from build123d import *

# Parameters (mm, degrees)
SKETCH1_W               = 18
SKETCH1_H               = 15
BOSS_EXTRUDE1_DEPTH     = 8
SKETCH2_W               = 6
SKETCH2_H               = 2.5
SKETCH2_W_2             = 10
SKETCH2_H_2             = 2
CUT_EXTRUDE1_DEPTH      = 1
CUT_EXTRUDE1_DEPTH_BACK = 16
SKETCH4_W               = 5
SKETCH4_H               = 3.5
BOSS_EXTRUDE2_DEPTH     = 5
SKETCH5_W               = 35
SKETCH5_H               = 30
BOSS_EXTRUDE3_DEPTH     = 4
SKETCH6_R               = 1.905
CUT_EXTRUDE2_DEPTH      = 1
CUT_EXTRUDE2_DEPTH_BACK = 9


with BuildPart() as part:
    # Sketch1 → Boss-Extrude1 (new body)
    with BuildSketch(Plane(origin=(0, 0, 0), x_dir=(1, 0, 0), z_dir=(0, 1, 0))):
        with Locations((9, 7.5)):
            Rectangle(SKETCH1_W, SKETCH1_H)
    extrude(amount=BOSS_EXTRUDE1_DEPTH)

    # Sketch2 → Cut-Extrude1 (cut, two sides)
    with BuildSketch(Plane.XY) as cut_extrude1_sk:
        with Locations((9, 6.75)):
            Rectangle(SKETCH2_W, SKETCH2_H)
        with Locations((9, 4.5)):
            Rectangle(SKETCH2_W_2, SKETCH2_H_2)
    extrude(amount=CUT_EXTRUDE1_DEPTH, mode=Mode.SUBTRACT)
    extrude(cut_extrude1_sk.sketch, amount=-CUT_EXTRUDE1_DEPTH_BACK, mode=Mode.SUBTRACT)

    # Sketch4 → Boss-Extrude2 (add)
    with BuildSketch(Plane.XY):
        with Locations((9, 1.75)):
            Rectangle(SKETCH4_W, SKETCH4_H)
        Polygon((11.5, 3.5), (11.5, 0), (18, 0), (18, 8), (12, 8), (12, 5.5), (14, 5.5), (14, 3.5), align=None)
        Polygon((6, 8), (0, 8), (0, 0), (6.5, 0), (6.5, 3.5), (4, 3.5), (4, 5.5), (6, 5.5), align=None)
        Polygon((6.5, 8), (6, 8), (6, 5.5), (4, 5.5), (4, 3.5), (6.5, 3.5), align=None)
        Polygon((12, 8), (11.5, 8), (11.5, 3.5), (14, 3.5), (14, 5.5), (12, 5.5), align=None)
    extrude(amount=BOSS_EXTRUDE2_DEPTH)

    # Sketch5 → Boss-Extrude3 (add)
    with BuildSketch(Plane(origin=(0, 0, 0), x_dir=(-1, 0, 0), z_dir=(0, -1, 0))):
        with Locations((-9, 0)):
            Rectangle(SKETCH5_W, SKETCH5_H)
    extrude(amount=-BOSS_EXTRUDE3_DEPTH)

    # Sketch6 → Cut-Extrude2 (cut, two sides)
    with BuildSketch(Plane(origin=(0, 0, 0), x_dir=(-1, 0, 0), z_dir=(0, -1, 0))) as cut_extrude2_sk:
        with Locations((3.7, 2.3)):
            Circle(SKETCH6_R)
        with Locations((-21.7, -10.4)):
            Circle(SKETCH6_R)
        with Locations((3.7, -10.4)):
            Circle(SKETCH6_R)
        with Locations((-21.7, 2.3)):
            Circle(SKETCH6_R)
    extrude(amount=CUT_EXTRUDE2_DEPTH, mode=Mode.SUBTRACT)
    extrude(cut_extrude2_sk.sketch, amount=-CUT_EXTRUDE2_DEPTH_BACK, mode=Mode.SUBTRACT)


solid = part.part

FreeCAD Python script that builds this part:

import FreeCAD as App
import Part
import Sketcher
from FreeCAD import Vector


def add_polygon(sketch, points):
    """Adds a closed chain of lines whose ends are joined by coincident constraints."""
    first, n = sketch.GeometryCount, len(points)
    for a, b in zip(points, points[1:] + points[:1]):
        sketch.addGeometry(Part.LineSegment(App.Vector(*a, 0), App.Vector(*b, 0)), False)
    for i in range(n):
        sketch.addConstraint(Sketcher.Constraint("Coincident", first + i, 2, first + (i + 1) % n, 1))

doc = App.newDocument("Part")
body = doc.addObject("PartDesign::Body", "Body")

# Sketch on XZ plane
sketch1 = body.newObject("Sketcher::SketchObject", "Sketch")
sketch1.AttachmentSupport = (doc.getObject("XZ_Plane"), [""])
sketch1.MapMode = "FlatFace"
add_polygon(sketch1, [(0, -15), (0, 0), (18, 0), (18, -15)])  # lines 0-3
sketch1.addConstraint(Sketcher.Constraint("Vertical", 0))
sketch1.addConstraint(Sketcher.Constraint("Horizontal", 1))
sketch1.addConstraint(Sketcher.Constraint("Vertical", 2))
sketch1.addConstraint(Sketcher.Constraint("Horizontal", 3))
sketch1.addConstraint(Sketcher.Constraint("Coincident", 0, 2, -1, 1))
sketch1.addConstraint(Sketcher.Constraint("DistanceX", 1, 1, 1, 2, 18.0))
sketch1.addConstraint(Sketcher.Constraint("DistanceY", 0, 1, 0, 2, 15.0))
pad1 = body.newObject("PartDesign::Pad", "Pad")
pad1.Profile = sketch1
pad1.Length = 8
pad1.Reversed = True

# Sketch on XY plane
sketch2 = body.newObject("Sketcher::SketchObject", "Sketch001")
sketch2.AttachmentSupport = (doc.getObject("XY_Plane"), [""])
sketch2.MapMode = "FlatFace"
add_polygon(sketch2, [(6, 8), (6, 5.5), (4, 5.5), (4, 3.5), (14, 3.5), (14, 5.5), (12, 5.5), (12, 8)])  # lines 0-7
sketch2.addConstraint(Sketcher.Constraint("Vertical", 0))
sketch2.addConstraint(Sketcher.Constraint("Horizontal", 1))
sketch2.addConstraint(Sketcher.Constraint("Vertical", 2))
sketch2.addConstraint(Sketcher.Constraint("Horizontal", 3))
sketch2.addConstraint(Sketcher.Constraint("Vertical", 4))
sketch2.addConstraint(Sketcher.Constraint("Horizontal", 5))
sketch2.addConstraint(Sketcher.Constraint("Vertical", 6))
sketch2.addConstraint(Sketcher.Constraint("Horizontal", 7))
sketch2.addConstraint(Sketcher.Constraint("Horizontal", 1, 2, 4, 2))
sketch2.addConstraint(Sketcher.Constraint("Equal", 1, 5))
sketch2.addConstraint(Sketcher.Constraint("Equal", 5, 2))
sketch2.addConstraint(Sketcher.Constraint("DistanceX", 1, 2, 1, 1, 2.0))
sketch2.addConstraint(Sketcher.Constraint("DistanceX", 3, 1, 3, 2, 10.0))
sketch2.addConstraint(Sketcher.Constraint("DistanceY", 0, 2, 0, 1, 2.5))
sketch2.addConstraint(Sketcher.Constraint("DistanceX", -1, 1, 0, 2, 6.0))
sketch2.addConstraint(Sketcher.Constraint("DistanceY", -1, 1, 6, 2, 8.0))
pocket1 = body.newObject("PartDesign::Pocket", "Pocket")
pocket1.Profile = sketch2
pocket1.Type = "ThroughAll"
pocket1.Midplane = True

# Sketch on XY plane
sketch3 = body.newObject("Sketcher::SketchObject", "Sketch002")
sketch3.AttachmentSupport = (doc.getObject("XY_Plane"), [""])
sketch3.MapMode = "FlatFace"
add_polygon(sketch3, [(18, 0), (18, 8), (11.5, 8), (11.5, 3.5), (6.5, 3.5), (6.5, 8), (0, 8), (0, 0)])  # lines 0-7
sketch3.addConstraint(Sketcher.Constraint("Vertical", 0))
sketch3.addConstraint(Sketcher.Constraint("Horizontal", 1))
sketch3.addConstraint(Sketcher.Constraint("Vertical", 2))
sketch3.addConstraint(Sketcher.Constraint("Horizontal", 3))
sketch3.addConstraint(Sketcher.Constraint("Vertical", 4))
sketch3.addConstraint(Sketcher.Constraint("Horizontal", 5))
sketch3.addConstraint(Sketcher.Constraint("Vertical", 6))
sketch3.addConstraint(Sketcher.Constraint("Horizontal", 7))
sketch3.addConstraint(Sketcher.Constraint("Coincident", 6, 2, -1, 1))
sketch3.addConstraint(Sketcher.Constraint("Horizontal", 1, 2, 4, 2))
sketch3.addConstraint(Sketcher.Constraint("Equal", 1, 5))
sketch3.addConstraint(Sketcher.Constraint("DistanceX", 3, 2, 3, 1, 5.0))
sketch3.addConstraint(Sketcher.Constraint("DistanceX", 7, 1, 7, 2, 18.0))
sketch3.addConstraint(Sketcher.Constraint("DistanceY", 0, 1, 0, 2, 8.0))
sketch3.addConstraint(Sketcher.Constraint("DistanceY", 2, 2, 2, 1, 4.5))
pad2 = body.newObject("PartDesign::Pad", "Pad001")
pad2.Profile = sketch3
pad2.Length = 5

# Sketch on XZ plane
sketch4 = body.newObject("Sketcher::SketchObject", "Sketch003")
sketch4.AttachmentSupport = (doc.getObject("XZ_Plane"), [""])
sketch4.MapMode = "FlatFace"
add_polygon(sketch4, [(26, -15), (26, 15), (-8, 15), (-8, -15)])  # lines 0-3
sketch4.addConstraint(Sketcher.Constraint("Vertical", 0))
sketch4.addConstraint(Sketcher.Constraint("Horizontal", 1))
sketch4.addConstraint(Sketcher.Constraint("Vertical", 2))
sketch4.addConstraint(Sketcher.Constraint("Horizontal", 3))
sketch4.addConstraint(Sketcher.Constraint("DistanceX", 1, 2, 1, 1, 35.0))
sketch4.addConstraint(Sketcher.Constraint("DistanceY", 0, 1, 0, 2, 30.0))
sketch4.addConstraint(Sketcher.Constraint("DistanceY", -1, 1, 0, 2, 15.0))
sketch4.addConstraint(Sketcher.Constraint("DistanceX", -1, 1, 0, 2, 26.5))
pad3 = body.newObject("PartDesign::Pad", "Pad002")
pad3.Profile = sketch4
pad3.Length = 4
pad3.Reversed = True

# Sketch on XZ plane
sketch5 = body.newObject("Sketcher::SketchObject", "Sketch004")
sketch5.AttachmentSupport = (doc.getObject("XZ_Plane"), [""])
sketch5.MapMode = "FlatFace"
sketch5.addGeometry(Part.Circle(Vector(-3.7, -2.3, 0), Vector(0, 0, 1), 1.9), False)
sketch5.addGeometry(Part.Circle(Vector(21.7, 10.4, 0), Vector(0, 0, 1), 1.9), False)
sketch5.addGeometry(Part.Circle(Vector(-3.7, 10.4, 0), Vector(0, 0, 1), 1.9), False)
sketch5.addGeometry(Part.Circle(Vector(21.7, -2.3, 0), Vector(0, 0, 1), 1.9), False)
sketch5.addConstraint(Sketcher.Constraint("Equal", 0, 1))
sketch5.addConstraint(Sketcher.Constraint("Equal", 1, 2))
sketch5.addConstraint(Sketcher.Constraint("Equal", 2, 3))
sketch5.addConstraint(Sketcher.Constraint("Horizontal", 1, 3, 2, 3))
sketch5.addConstraint(Sketcher.Constraint("Horizontal", 0, 3, 3, 3))
sketch5.addConstraint(Sketcher.Constraint("Vertical", 0, 3, 2, 3))
sketch5.addConstraint(Sketcher.Constraint("Vertical", 1, 3, 3, 3))
sketch5.addConstraint(Sketcher.Constraint("Diameter", 0, 3.81))
sketch5.addConstraint(Sketcher.Constraint("DistanceX", 0, 3, -1, 1, 3.7))
sketch5.addConstraint(Sketcher.Constraint("DistanceY", 0, 3, -1, 1, 2.3))
sketch5.addConstraint(Sketcher.Constraint("DistanceX", -1, 1, 1, 3, 21.7))
sketch5.addConstraint(Sketcher.Constraint("DistanceY", -1, 1, 1, 3, 10.4))
pocket2 = body.newObject("PartDesign::Pocket", "Pocket001")
pocket2.Profile = sketch5
pocket2.Type = "ThroughAll"
pocket2.Midplane = True

doc.recompute()
